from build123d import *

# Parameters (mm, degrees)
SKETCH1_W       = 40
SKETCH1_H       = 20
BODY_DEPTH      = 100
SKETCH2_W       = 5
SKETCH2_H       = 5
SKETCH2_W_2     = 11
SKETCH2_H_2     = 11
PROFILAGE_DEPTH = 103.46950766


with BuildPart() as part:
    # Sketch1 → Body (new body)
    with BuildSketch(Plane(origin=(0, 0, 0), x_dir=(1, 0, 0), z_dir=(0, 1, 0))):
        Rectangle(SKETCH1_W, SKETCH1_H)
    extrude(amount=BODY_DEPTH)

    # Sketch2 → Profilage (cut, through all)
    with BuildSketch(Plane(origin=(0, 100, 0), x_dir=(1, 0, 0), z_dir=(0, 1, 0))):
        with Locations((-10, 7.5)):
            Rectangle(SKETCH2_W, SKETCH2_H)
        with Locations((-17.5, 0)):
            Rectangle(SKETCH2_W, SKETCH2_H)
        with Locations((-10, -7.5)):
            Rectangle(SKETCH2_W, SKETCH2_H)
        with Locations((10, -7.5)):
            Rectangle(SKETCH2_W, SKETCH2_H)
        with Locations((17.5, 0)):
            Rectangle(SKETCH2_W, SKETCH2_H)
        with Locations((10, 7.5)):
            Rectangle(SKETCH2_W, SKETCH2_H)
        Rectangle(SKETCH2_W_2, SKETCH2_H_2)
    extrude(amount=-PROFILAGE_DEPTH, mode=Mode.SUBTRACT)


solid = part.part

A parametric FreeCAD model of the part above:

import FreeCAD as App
import Part
import Sketcher

V = App.Vector
Q = App.Units.Quantity

doc = App.newDocument("Part")
body = doc.addObject("PartDesign::Body", "Body")

sketch1 = doc.addObject("Sketcher::SketchObject", "Sketch")
body.addObject(sketch1)
sketch1.AttachmentSupport = (doc.XZ_Plane, [""])
sketch1.MapMode = "FlatFace"
sketch1.addGeometry([
    Part.LineSegment(V(-20, -10, 0), V(-20, 10, 0)),
    Part.LineSegment(V(-20, 10, 0), V(20, 10, 0)),
    Part.LineSegment(V(20, 10, 0), V(20, -10, 0)),
    Part.LineSegment(V(20, -10, 0), V(-20, -10, 0)),
], False)
sketch1.addConstraint([
    Sketcher.Constraint("Coincident", 0, 2, 1, 1),
    Sketcher.Constraint("Coincident", 1, 2, 2, 1),
    Sketcher.Constraint("Coincident", 2, 2, 3, 1),
    Sketcher.Constraint("Coincident", 3, 2, 0, 1),
    Sketcher.Constraint("Vertical", 0),
    Sketcher.Constraint("Horizontal", 1),
    Sketcher.Constraint("Vertical", 2),
    Sketcher.Constraint("Horizontal", 3),
    Sketcher.Constraint("Symmetric", 0, 2, 2, 2, -1, 1),
    Sketcher.Constraint("DistanceX", 1, 1, 1, 2, Q("40 mm")),
    Sketcher.Constraint("DistanceY", 0, 1, 0, 2, Q("20 mm")),
])
pad1 = doc.addObject("PartDesign::Pad", "Pad")
body.addObject(pad1)
pad1.Profile = sketch1
pad1.Length = 100
pad1.Reversed = True

sketch2 = doc.addObject("Sketcher::SketchObject", "Sketch001")
body.addObject(sketch2)
sketch2.AttachmentSupport = (doc.XZ_Plane, [""])
sketch2.MapMode = "FlatFace"
sketch2.AttachmentOffset = App.Placement(V(0, 0, -100), App.Rotation())
sketch2.addGeometry([
    Part.LineSegment(V(-12.5, -10, 0), V(-12.5, -5, 0)),
    Part.LineSegment(V(-12.5, -5, 0), V(-7.5, -5, 0)),
    Part.LineSegment(V(-7.5, -5, 0), V(-7.5, -10, 0)),
    Part.LineSegment(V(-7.5, -10, 0), V(-12.5, -10, 0)),
    Part.LineSegment(V(-20, -2.5, 0), V(-20, 2.5, 0)),
    Part.LineSegment(V(-20, 2.5, 0), V(-15, 2.5, 0)),
    Part.LineSegment(V(-15, 2.5, 0), V(-15, -2.5, 0)),
    Part.LineSegment(V(-15, -2.5, 0), V(-20, -2.5, 0)),
    Part.LineSegment(V(-12.5, 5, 0), V(-12.5, 10, 0)),
    Part.LineSegment(V(-12.5, 10, 0), V(-7.5, 10, 0)),
    Part.LineSegment(V(-7.5, 10, 0), V(-7.5, 5, 0)),
    Part.LineSegment(V(-7.5, 5, 0), V(-12.5, 5, 0)),
    Part.LineSegment(V(7.5, 5, 0), V(7.5, 10, 0)),
    Part.LineSegment(V(7.5, 10, 0), V(12.5, 10, 0)),
    Part.LineSegment(V(12.5, 10, 0), V(12.5, 5, 0)),
    Part.LineSegment(V(12.5, 5, 0), V(7.5, 5, 0)),
    Part.LineSegment(V(15, -2.5, 0), V(15, 2.5, 0)),
    Part.LineSegment(V(15, 2.5, 0), V(20, 2.5, 0)),
    Part.LineSegment(V(20, 2.5, 0), V(20, -2.5, 0)),
    Part.LineSegment(V(20, -2.5, 0), V(15, -2.5, 0)),
    Part.LineSegment(V(7.5, -10, 0), V(7.5, -5, 0)),
    Part.LineSegment(V(7.5, -5, 0), V(12.5, -5, 0)),
    Part.LineSegment(V(12.5, -5, 0), V(12.5, -10, 0)),
    Part.LineSegment(V(12.5, -10, 0), V(7.5, -10, 0)),
    Part.LineSegment(V(-5.5, -5.5, 0), V(-5.5, 5.5, 0)),
    Part.LineSegment(V(-5.5, 5.5, 0), V(5.5, 5.5, 0)),
    Part.LineSegment(V(5.5, 5.5, 0), V(5.5, -5.5, 0)),
    Part.LineSegment(V(5.5, -5.5, 0), V(-5.5, -5.5, 0)),
], False)
sketch2.addConstraint([
    Sketcher.Constraint("Coincident", 0, 2, 1, 1),
    Sketcher.Constraint("Coincident", 1, 2, 2, 1),
    Sketcher.Constraint("Coincident", 2, 2, 3, 1),
    Sketcher.Constraint("Coincident", 3, 2, 0, 1),
    Sketcher.Constraint("Coincident", 4, 2, 5, 1),
    Sketcher.Constraint("Coincident", 5, 2, 6, 1),
    Sketcher.Constraint("Coincident", 6, 2, 7, 1),
    Sketcher.Constraint("Coincident", 7, 2, 4, 1),
    Sketcher.Constraint("Coincident", 8, 2, 9, 1),
    Sketcher.Constraint("Coincident", 9, 2, 10, 1),
    Sketcher.Constraint("Coincident", 10, 2, 11, 1),
    Sketcher.Constraint("Coincident", 11, 2, 8, 1),
    Sketcher.Constraint("Coincident", 12, 2, 13, 1),
    Sketcher.Constraint("Coincident", 13, 2, 14, 1),
    Sketcher.Constraint("Coincident", 14, 2, 15, 1),
    Sketcher.Constraint("Coincident", 15, 2, 12, 1),
    Sketcher.Constraint("Coincident", 16, 2, 17, 1),
    Sketcher.Constraint("Coincident", 17, 2, 18, 1),
    Sketcher.Constraint("Coincident", 18, 2, 19, 1),
    Sketcher.Constraint("Coincident", 19, 2, 16, 1),
    Sketcher.Constraint("Coincident", 20, 2, 21, 1),
    Sketcher.Constraint("Coincident", 21, 2, 22, 1),
    Sketcher.Constraint("Coincident", 22, 2, 23, 1),
    Sketcher.Constraint("Coincident", 23, 2, 20, 1),
    Sketcher.Constraint("Coincident", 24, 2, 25, 1),
    Sketcher.Constraint("Coincident", 25, 2, 26, 1),
    Sketcher.Constraint("Coincident", 26, 2, 27, 1),
    Sketcher.Constraint("Coincident", 27, 2, 24, 1),
    Sketcher.Constraint("Vertical", 0),
    Sketcher.Constraint("Horizontal", 1),
    Sketcher.Constraint("Vertical", 2),
    Sketcher.Constraint("Horizontal", 3),
    Sketcher.Constraint("Vertical", 4),
    Sketcher.Constraint("Horizontal", 5),
    Sketcher.Constraint("Vertical", 6),
    Sketcher.Constraint("Horizontal", 7),
    Sketcher.Constraint("Vertical", 8),
    Sketcher.Constraint("Horizontal", 9),
    Sketcher.Constraint("Vertical", 10),
    Sketcher.Constraint("Horizontal", 11),
    Sketcher.Constraint("Vertical", 12),
    Sketcher.Constraint("Horizontal", 13),
    Sketcher.Constraint("Vertical", 14),
    Sketcher.Constraint("Horizontal", 15),
    Sketcher.Constraint("Vertical", 16),
    Sketcher.Constraint("Horizontal", 17),
    Sketcher.Constraint("Vertical", 18),
    Sketcher.Constraint("Horizontal", 19),
    Sketcher.Constraint("Vertical", 20),
    Sketcher.Constraint("Horizontal", 21),
    Sketcher.Constraint("Vertical", 22),
    Sketcher.Constraint("Horizontal", 23),
    Sketcher.Constraint("Vertical", 24),
    Sketcher.Constraint("Horizontal", 25),
    Sketcher.Constraint("Vertical", 26),
    Sketcher.Constraint("Horizontal", 27),
    Sketcher.Constraint("Symmetric", 2, 2, 12, 2, -1, 1),
    Sketcher.Constraint("Symmetric", 0, 2, 14, 2, -1, 1),
    Sketcher.Constraint("Symmetric", 6, 2, 16, 2, -1, 1),
    Sketcher.Constraint("Symmetric", 4, 2, 18, 2, -1, 1),
    Sketcher.Constraint("Symmetric", 10, 2, 20, 2, -1, 1),
    Sketcher.Constraint("Symmetric", 8, 2, 22, 2, -1, 1),
    Sketcher.Constraint("Symmetric", 24, 2, 26, 2, -1, 1),
    Sketcher.Constraint("Symmetric", 9, 2, 12, 2, -2),
    Sketcher.Constraint("Symmetric", 11, 2, 14, 2, -2),
    Sketcher.Constraint("Horizontal", 5, 2, 16, 2),
    Sketcher.Constraint("Equal", 3, 5),
    Sketcher.Constraint("Equal", 23, 0),
    Sketcher.Constraint("Equal", 2, 4),
    Sketcher.Constraint("Equal", 27, 24),
    Sketcher.Constraint("DistanceX", 1, 1, 1, 2, Q("5 mm")),
    Sketcher.Constraint("DistanceX", 25, 1, 25, 2, Q("11 mm")),
    Sketcher.Constraint("DistanceY", 0, 2, -1, 1, Q("5 mm")),
    Sketcher.Constraint("DistanceX", 4, 2, -1, 1, Q("20 mm")),
    Sketcher.Constraint("DistanceX", 9, 2, 12, 2, Q("15 mm")),
])
pocket1 = doc.addObject("PartDesign::Pocket", "Pocket")
body.addObject(pocket1)
pocket1.Profile = sketch2
pocket1.Type = "ThroughAll"
pocket1.Reversed = True

doc.recompute()
